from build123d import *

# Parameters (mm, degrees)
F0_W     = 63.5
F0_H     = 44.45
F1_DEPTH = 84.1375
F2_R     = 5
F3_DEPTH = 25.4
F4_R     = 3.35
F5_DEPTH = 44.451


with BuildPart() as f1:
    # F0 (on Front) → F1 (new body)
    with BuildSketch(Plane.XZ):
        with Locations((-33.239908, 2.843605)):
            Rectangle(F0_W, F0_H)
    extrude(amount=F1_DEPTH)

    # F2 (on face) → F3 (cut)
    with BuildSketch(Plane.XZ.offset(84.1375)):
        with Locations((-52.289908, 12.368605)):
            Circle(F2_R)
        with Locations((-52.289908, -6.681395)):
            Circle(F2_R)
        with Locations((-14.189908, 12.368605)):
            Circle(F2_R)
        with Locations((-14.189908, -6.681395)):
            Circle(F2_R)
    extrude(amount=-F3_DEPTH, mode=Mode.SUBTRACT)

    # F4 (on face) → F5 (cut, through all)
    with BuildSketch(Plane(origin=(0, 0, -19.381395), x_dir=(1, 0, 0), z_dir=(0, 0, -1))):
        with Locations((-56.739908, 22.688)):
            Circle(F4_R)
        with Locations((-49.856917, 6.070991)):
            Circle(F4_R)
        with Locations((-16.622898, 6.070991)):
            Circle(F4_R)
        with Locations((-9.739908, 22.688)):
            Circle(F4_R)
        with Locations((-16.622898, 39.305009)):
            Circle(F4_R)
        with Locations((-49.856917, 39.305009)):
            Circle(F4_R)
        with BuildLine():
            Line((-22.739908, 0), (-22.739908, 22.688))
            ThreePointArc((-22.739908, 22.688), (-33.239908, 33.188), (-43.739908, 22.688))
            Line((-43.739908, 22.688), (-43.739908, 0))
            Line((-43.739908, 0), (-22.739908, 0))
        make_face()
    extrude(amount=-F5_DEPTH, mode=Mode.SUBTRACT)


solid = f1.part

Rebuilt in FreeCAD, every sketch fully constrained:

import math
import FreeCAD as App
import Part
import Sketcher
from FreeCAD import Vector
Q = App.Units.Quantity

doc = App.newDocument("Part")
body = doc.addObject("PartDesign::Body", "Body")

# Sketch on XZ plane
sketch1 = doc.addObject("Sketcher::SketchObject", "Sketch")
body.addObject(sketch1)
sketch1.AttachmentSupport = (doc.XZ_Plane, [""])
sketch1.MapMode = "FlatFace"
sketch1.addGeometry([
    Part.LineSegment(Vector(-65, 25, 0), Vector(-65, -19, 0)),
    Part.LineSegment(Vector(-65, -19, 0), Vector(-1, -19, 0)),
    Part.LineSegment(Vector(-1, -19, 0), Vector(-1, 25, 0)),
    Part.LineSegment(Vector(-1, 25, 0), Vector(-65, 25, 0)),
], False)
sketch1.addConstraint([
    Sketcher.Constraint("Coincident", 0, 2, 1, 1),
    Sketcher.Constraint("Coincident", 1, 2, 2, 1),
    Sketcher.Constraint("Coincident", 2, 2, 3, 1),
    Sketcher.Constraint("Coincident", 3, 2, 0, 1),
    Sketcher.Constraint("Vertical", 0),
    Sketcher.Constraint("Horizontal", 1),
    Sketcher.Constraint("Vertical", 2),
    Sketcher.Constraint("Horizontal", 3),
    Sketcher.Constraint("DistanceX", 1, 1, 1, 2, Q("2.5 in")),
    Sketcher.Constraint("DistanceY", 0, 2, 0, 1, Q("1.75 in")),
    Sketcher.Constraint("DistanceX", 0, 2, -1, 1, Q("64.989908 mm")),
    Sketcher.Constraint("DistanceY", 0, 2, -1, 1, Q("19.381395 mm")),
])
pad1 = doc.addObject("PartDesign::Pad", "Pad")
body.addObject(pad1)
pad1.Profile = sketch1
pad1.Length = Q("3.3125 in")

# Sketch on XZ plane
sketch2 = doc.addObject("Sketcher::SketchObject", "Sketch001")
body.addObject(sketch2)
sketch2.AttachmentSupport = (doc.XZ_Plane, [""])
sketch2.MapMode = "FlatFace"
sketch2.AttachmentOffset = App.Placement(Vector(0, 0, 3.3125 * 25.4), App.Rotation())
sketch2.addGeometry([
    Part.Circle(Vector(-52, 12, 0), Vector(0, 0, 1), 5),
    Part.Circle(Vector(-52, -7, 0), Vector(0, 0, 1), 5),
    Part.Circle(Vector(-14, 12, 0), Vector(0, 0, 1), 5),
    Part.Circle(Vector(-14, -7, 0), Vector(0, 0, 1), 5),
], False)
sketch2.addConstraint([
    Sketcher.Constraint("Equal", 0, 1),
    Sketcher.Constraint("Equal", 1, 2),
    Sketcher.Constraint("Equal", 2, 3),
    Sketcher.Constraint("Horizontal", 0, 3, 2, 3),
    Sketcher.Constraint("Horizontal", 1, 3, 3, 3),
    Sketcher.Constraint("Vertical", 0, 3, 1, 3),
    Sketcher.Constraint("Vertical", 2, 3, 3, 3),
    Sketcher.Constraint("DistanceX", 0, 3, 2, 3, Q("1.5 in")),
    Sketcher.Constraint("Diameter", 0, Q("10 mm")),
    Sketcher.Constraint("DistanceY", 1, 3, 0, 3, Q("0.75 in")),
    Sketcher.Constraint("DistanceX", 2, 3, -1, 1, Q("14.189908 mm")),
    Sketcher.Constraint("DistanceY", -1, 1, 0, 3, Q("12.368605 mm")),
])
pocket1 = doc.addObject("PartDesign::Pocket", "Pocket")
body.addObject(pocket1)
pocket1.Profile = sketch2
pocket1.Length = Q("1 in")

# Sketch on XY plane
sketch3 = doc.addObject("Sketcher::SketchObject", "Sketch002")
body.addObject(sketch3)
sketch3.AttachmentSupport = (doc.XY_Plane, [""])
sketch3.MapMode = "FlatFace"
sketch3.AttachmentOffset = App.Placement(Vector(0, 0, -19.381395), App.Rotation())
sketch3.addGeometry([
    Part.Circle(Vector(-56.7, -22.7, 0), Vector(0, 0, 1), 3.4),  # 0
    Part.Circle(Vector(-49.9, -6.1, 0), Vector(0, 0, 1), 3.4),  # 1
    Part.Circle(Vector(-16.6, -6.1, 0), Vector(0, 0, 1), 3.4),  # 2
    Part.Circle(Vector(-9.7, -22.7, 0), Vector(0, 0, 1), 3.4),  # 3
    Part.Circle(Vector(-16.6, -39.3, 0), Vector(0, 0, 1), 3.4),  # 4
    Part.Circle(Vector(-49.9, -39.3, 0), Vector(0, 0, 1), 3.4),  # 5
    Part.LineSegment(Vector(-22.7, 0, 0), Vector(-22.7, -22.7, 0)),  # 6
    Part.ArcOfCircle(Part.Circle(Vector(-33.2, -22.7, 0), Vector(0, 0, 1), 10.5), math.radians(180), math.radians(360)),  # 7
    Part.LineSegment(Vector(-43.7, -22.7, 0), Vector(-43.7, 0, 0)),  # 8
    Part.LineSegment(Vector(-43.7, 0, 0), Vector(-22.7, 0, 0)),  # 9
], False)
sketch3.addConstraint([
    Sketcher.Constraint("Tangent", 6, 2, 7, 2),
    Sketcher.Constraint("Tangent", 7, 1, 8, 1),
    Sketcher.Constraint("Coincident", 8, 2, 9, 1),
    Sketcher.Constraint("Coincident", 9, 2, 6, 1),
    Sketcher.Constraint("Vertical", 6),
    Sketcher.Constraint("Vertical", 8),
    Sketcher.Constraint("Horizontal", 9),
    Sketcher.Constraint("Equal", 0, 1),
    Sketcher.Constraint("Equal", 1, 2),
    Sketcher.Constraint("Equal", 2, 3),
    Sketcher.Constraint("Equal", 3, 4),
    Sketcher.Constraint("Equal", 4, 5),
    Sketcher.Constraint("PointOnObject", 8, 2, -1),
    Sketcher.Constraint("Horizontal", 1, 3, 2, 3),
    Sketcher.Constraint("Horizontal", 0, 3, 3, 3),
    Sketcher.Constraint("Horizontal", 4, 3, 5, 3),
    Sketcher.Constraint("Horizontal", 3, 3, 7, 3),
    Sketcher.Constraint("Vertical", 2, 3, 4, 3),
    Sketcher.Constraint("Vertical", 1, 3, 5, 3),
    Sketcher.Constraint("Diameter", 0, Q("6.7 mm")),
    Sketcher.Constraint("Radius", 7, Q("10.5 mm")),
    Sketcher.Constraint("DistanceY", 6, 2, 6, 1, Q("22.688 mm")),
    Sketcher.Constraint("DistanceX", 0, 3, 3, 3, Q("47 mm")),
    Sketcher.Constraint("DistanceX", 0, 3, 7, 3, Q("23.5 mm")),
    Sketcher.Constraint("DistanceY", 1, 3, -1, 1, Q("6.070991 mm")),
    Sketcher.Constraint("DistanceY", 4, 3, -1, 1, Q("39.305009 mm")),
    Sketcher.Constraint("DistanceX", 6, 2, -1, 1, Q("22.739908 mm")),
    Sketcher.Constraint("DistanceX", 0, 3, 1, 3, Q("6.882991 mm")),
    Sketcher.Constraint("DistanceX", 1, 3, 2, 3, Q("33.234019 mm")),
])
pocket2 = doc.addObject("PartDesign::Pocket", "Pocket001")
body.addObject(pocket2)
pocket2.Profile = sketch3
pocket2.Type = "ThroughAll"
pocket2.Reversed = True

doc.recompute()
